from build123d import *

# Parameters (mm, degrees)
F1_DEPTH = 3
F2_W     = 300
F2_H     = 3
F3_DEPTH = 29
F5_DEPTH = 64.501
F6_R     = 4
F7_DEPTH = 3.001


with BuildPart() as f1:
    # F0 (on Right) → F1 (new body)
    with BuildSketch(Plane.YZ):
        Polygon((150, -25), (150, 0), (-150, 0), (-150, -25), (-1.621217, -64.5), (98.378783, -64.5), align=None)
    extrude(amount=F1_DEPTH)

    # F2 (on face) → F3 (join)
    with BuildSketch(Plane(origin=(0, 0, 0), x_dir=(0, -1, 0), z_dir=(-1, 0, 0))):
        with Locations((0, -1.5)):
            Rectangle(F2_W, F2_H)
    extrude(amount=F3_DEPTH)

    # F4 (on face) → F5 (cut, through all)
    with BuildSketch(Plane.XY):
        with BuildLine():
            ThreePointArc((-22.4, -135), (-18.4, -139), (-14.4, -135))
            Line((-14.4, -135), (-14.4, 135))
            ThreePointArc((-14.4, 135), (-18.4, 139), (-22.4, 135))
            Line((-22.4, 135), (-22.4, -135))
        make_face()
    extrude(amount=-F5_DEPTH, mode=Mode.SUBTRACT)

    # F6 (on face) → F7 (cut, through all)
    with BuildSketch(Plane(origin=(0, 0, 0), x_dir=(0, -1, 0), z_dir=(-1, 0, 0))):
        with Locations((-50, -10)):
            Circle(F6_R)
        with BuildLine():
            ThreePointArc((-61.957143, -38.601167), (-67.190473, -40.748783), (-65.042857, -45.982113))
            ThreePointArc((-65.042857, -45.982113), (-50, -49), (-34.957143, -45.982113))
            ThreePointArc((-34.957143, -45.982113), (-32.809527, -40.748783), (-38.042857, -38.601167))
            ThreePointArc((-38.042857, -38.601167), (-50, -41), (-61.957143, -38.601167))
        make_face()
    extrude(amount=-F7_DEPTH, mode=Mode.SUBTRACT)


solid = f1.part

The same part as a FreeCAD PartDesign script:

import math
import FreeCAD as App
import Part
import Sketcher

V = App.Vector
Q = App.Units.Quantity

doc = App.newDocument("Part")
body = doc.addObject("PartDesign::Body", "Body")

# Sketch on YZ plane
sketch1 = body.newObject("Sketcher::SketchObject", "Sketch")
sketch1.AttachmentSupport = (doc.getObject("YZ_Plane"), [""])
sketch1.MapMode = "FlatFace"
sketch1.addGeometry([
    Part.LineSegment(V(150, -25, 0), V(150, 0, 0)),  # 0
    Part.LineSegment(V(150, 0, 0), V(-150, 0, 0)),  # 1
    Part.LineSegment(V(-150, 0, 0), V(-150, -25, 0)),  # 2
    Part.LineSegment(V(-150, -25, 0), V(-2, -64, 0)),  # 3
    Part.LineSegment(V(-2, -64, 0), V(98, -64, 0)),  # 4
    Part.LineSegment(V(98, -64, 0), V(150, -25, 0)),  # 5
], False)
sketch1.addConstraint([
    Sketcher.Constraint("Coincident", 0, 2, 1, 1),
    Sketcher.Constraint("Coincident", 1, 2, 2, 1),
    Sketcher.Constraint("Coincident", 2, 2, 3, 1),
    Sketcher.Constraint("Coincident", 3, 2, 4, 1),
    Sketcher.Constraint("Coincident", 4, 2, 5, 1),
    Sketcher.Constraint("Coincident", 5, 2, 0, 1),
    Sketcher.Constraint("Vertical", 0),
    Sketcher.Constraint("Horizontal", 1),
    Sketcher.Constraint("Vertical", 2),
    Sketcher.Constraint("Horizontal", 4),
    Sketcher.Constraint("Symmetric", 0, 2, 1, 2, -1, 1),
    Sketcher.Constraint("Horizontal", 2, 2, 5, 2),
    Sketcher.Constraint("DistanceX", 1, 2, 1, 1, Q("300 mm")),
    Sketcher.Constraint("DistanceX", 4, 1, 4, 2, Q("100 mm")),
    Sketcher.Constraint("DistanceY", 0, 1, 0, 2, Q("25 mm")),
    Sketcher.Constraint("Distance", 5, Q("65 mm")),
    Sketcher.Constraint("DistanceY", 3, 2, -1, 1, Q("64.5 mm")),
])
pad1 = body.newObject("PartDesign::Pad", "Pad")
pad1.Profile = sketch1
pad1.Length = 3

# Sketch on YZ plane
sketch2 = body.newObject("Sketcher::SketchObject", "Sketch001")
sketch2.AttachmentSupport = (doc.getObject("YZ_Plane"), [""])
sketch2.MapMode = "FlatFace"
sketch2.addGeometry([
    Part.LineSegment(V(150, 0, 0), V(150, -3, 0)),
    Part.LineSegment(V(150, -3, 0), V(-150, -3, 0)),
    Part.LineSegment(V(-150, -3, 0), V(-150, 0, 0)),
    Part.LineSegment(V(-150, 0, 0), V(150, 0, 0)),
], False)
sketch2.addConstraint([
    Sketcher.Constraint("Coincident", 0, 2, 1, 1),
    Sketcher.Constraint("Coincident", 1, 2, 2, 1),
    Sketcher.Constraint("Coincident", 2, 2, 3, 1),
    Sketcher.Constraint("Coincident", 3, 2, 0, 1),
    Sketcher.Constraint("Vertical", 0),
    Sketcher.Constraint("Horizontal", 1),
    Sketcher.Constraint("Vertical", 2),
    Sketcher.Constraint("Horizontal", 3),
    Sketcher.Constraint("Symmetric", 2, 2, 3, 2, -1, 1),
    Sketcher.Constraint("DistanceX", 1, 2, 1, 1, Q("300 mm")),
    Sketcher.Constraint("DistanceY", 0, 2, 0, 1, Q("3 mm")),
])
pad2 = body.newObject("PartDesign::Pad", "Pad001")
pad2.Profile = sketch2
pad2.Length = 29
pad2.Reversed = True

# Sketch on XY plane
sketch3 = body.newObject("Sketcher::SketchObject", "Sketch002")
sketch3.AttachmentSupport = (doc.getObject("XY_Plane"), [""])
sketch3.MapMode = "FlatFace"
sketch3.addGeometry([
    Part.ArcOfCircle(Part.Circle(V(-18.4, -135, 0), V(0, 0, 1), 4), math.radians(180), math.radians(360)),
    Part.LineSegment(V(-14.4, -135, 0), V(-14.4, 135, 0)),
    Part.ArcOfCircle(Part.Circle(V(-18.4, 135, 0), V(0, 0, 1), 4), math.radians(0), math.radians(180)),
    Part.LineSegment(V(-22.4, 135, 0), V(-22.4, -135, 0)),
], False)
sketch3.addConstraint([
    Sketcher.Constraint("Tangent", 0, 2, 1, 1),
    Sketcher.Constraint("Tangent", 1, 2, 2, 1),
    Sketcher.Constraint("Tangent", 2, 2, 3, 1),
    Sketcher.Constraint("Tangent", 3, 2, 0, 1),
    Sketcher.Constraint("Vertical", 1),
    Sketcher.Constraint("Vertical", 3),
    Sketcher.Constraint("Radius", 0, Q("4 mm")),
    Sketcher.Constraint("DistanceY", 1, 1, 1, 2, Q("270 mm")),
    Sketcher.Constraint("DistanceY", 0, 3, -1, 1, Q("135 mm")),
    Sketcher.Constraint("DistanceX", 0, 3, -1, 1, Q("18.4 mm")),
])
pocket1 = body.newObject("PartDesign::Pocket", "Pocket")
pocket1.Profile = sketch3
pocket1.Type = "ThroughAll"

# Sketch on YZ plane
sketch4 = body.newObject("Sketcher::SketchObject", "Sketch003")
sketch4.AttachmentSupport = (doc.getObject("YZ_Plane"), [""])
sketch4.MapMode = "FlatFace"
sketch4.addGeometry([
    Part.Circle(V(50, -10, 0), V(0, 0, 1), 4),  # 0
    Part.ArcOfCircle(Part.Circle(V(63.5, -42.3, 0), V(0, 0, 1), 4), math.radians(-67), math.radians(113)),  # 1
    Part.ArcOfCircle(Part.Circle(V(50, -10, 0), V(0, 0, 1), 39), math.radians(-113), math.radians(-67)),  # 2
    Part.ArcOfCircle(Part.Circle(V(36.5, -42.3, 0), V(0, 0, 1), 4), math.radians(67), math.radians(247)),  # 3
    Part.ArcOfCircle(Part.Circle(V(50, -10, 0), V(0, 0, 1), 31), math.radians(-113), math.radians(-67)),  # 4
], False)
sketch4.addConstraint([
    Sketcher.Constraint("Tangent", 1, 1, 2, 2),
    Sketcher.Constraint("Tangent", 2, 1, 3, 2),
    Sketcher.Constraint("Tangent", 3, 1, 4, 1),
    Sketcher.Constraint("Tangent", 4, 2, 1, 2),
    Sketcher.Constraint("Coincident", 2, 3, 0, 3),
    Sketcher.Constraint("Coincident", 4, 3, 0, 3),
    Sketcher.Constraint("Equal", 0, 1),
    Sketcher.Constraint("Horizontal", 1, 3, 3, 3),
    Sketcher.Constraint("Diameter", 0, Q("8 mm")),
    Sketcher.Constraint("Radius", 2, Q("39 mm")),
    Sketcher.Constraint("DistanceX", -1, 1, 0, 3, Q("50 mm")),
    Sketcher.Constraint("DistanceY", 0, 3, -1, 1, Q("10 mm")),
    Sketcher.Constraint("DistanceX", 3, 3, 1, 3, Q("27 mm")),
])
pocket2 = body.newObject("PartDesign::Pocket", "Pocket001")
pocket2.Profile = sketch4
pocket2.Type = "ThroughAll"
pocket2.Reversed = True

doc.recompute()
